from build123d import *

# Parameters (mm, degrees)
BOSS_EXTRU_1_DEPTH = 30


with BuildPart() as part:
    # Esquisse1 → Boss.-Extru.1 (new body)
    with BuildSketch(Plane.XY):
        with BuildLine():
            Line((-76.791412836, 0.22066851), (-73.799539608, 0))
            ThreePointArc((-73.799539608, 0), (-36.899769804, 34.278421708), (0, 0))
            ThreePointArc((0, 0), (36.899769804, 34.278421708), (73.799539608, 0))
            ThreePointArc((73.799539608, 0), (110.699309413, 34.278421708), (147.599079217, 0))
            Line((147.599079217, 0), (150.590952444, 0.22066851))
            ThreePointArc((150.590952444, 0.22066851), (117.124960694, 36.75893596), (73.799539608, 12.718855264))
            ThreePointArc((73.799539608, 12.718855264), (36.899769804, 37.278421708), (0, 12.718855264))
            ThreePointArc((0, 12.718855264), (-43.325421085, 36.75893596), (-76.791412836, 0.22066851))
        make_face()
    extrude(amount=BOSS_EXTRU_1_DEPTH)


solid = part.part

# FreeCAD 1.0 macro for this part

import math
import FreeCAD as App
import Part
import Sketcher

V = App.Vector

doc = App.newDocument("Part")
body = doc.addObject("PartDesign::Body", "Body")

sketch1 = doc.addObject("Sketcher::SketchObject", "Sketch")
body.addObject(sketch1)
sketch1.AttachmentSupport = (doc.XY_Plane, [""])
sketch1.MapMode = "FlatFace"
sketch1.addGeometry([
    Part.LineSegment(V(-76.8, 0.2, 0), V(-73.8, 0, 0)),
    Part.ArcOfCircle(Part.Circle(V(-36.9, -2.7, 0), V(0, 0, 1), 37), math.radians(4), math.radians(176)),
    Part.ArcOfCircle(Part.Circle(V(36.9, -2.7, 0), V(0, 0, 1), 37), math.radians(4), math.radians(176)),
    Part.ArcOfCircle(Part.Circle(V(110.7, -2.7, 0), V(0, 0, 1), 37), math.radians(4), math.radians(176)),
    Part.LineSegment(V(147.6, 0, 0), V(150.6, 0.2, 0)),
    Part.ArcOfCircle(Part.Circle(V(110.7, -2.7, 0), V(0, 0, 1), 40), math.radians(4), math.radians(157)),
    Part.ArcOfCircle(Part.Circle(V(36.9, -2.7, 0), V(0, 0, 1), 40), math.radians(23), math.radians(157)),
    Part.ArcOfCircle(Part.Circle(V(-36.9, -2.7, 0), V(0, 0, 1), 40), math.radians(23), math.radians(176)),
], False)
sketch1.addConstraint([
    Sketcher.Constraint("Coincident", 0, 2, 1, 2),
    Sketcher.Constraint("Coincident", 1, 1, 2, 2),
    Sketcher.Constraint("Coincident", 2, 1, 3, 2),
    Sketcher.Constraint("Coincident", 3, 1, 4, 1),
    Sketcher.Constraint("Coincident", 4, 2, 5, 1),
    Sketcher.Constraint("Coincident", 5, 2, 6, 1),
    Sketcher.Constraint("Coincident", 6, 2, 7, 1),
    Sketcher.Constraint("Coincident", 7, 2, 0, 1),
    Sketcher.Constraint("Coincident", 1, 1, -1, 1),
    Sketcher.Constraint("Coincident", 5, 3, 3, 3),
    Sketcher.Constraint("Coincident", 6, 3, 2, 3),
    Sketcher.Constraint("Coincident", 7, 3, 1, 3),
    Sketcher.Constraint("Equal", 1, 2),
    Sketcher.Constraint("Equal", 2, 3),
    Sketcher.Constraint("Equal", 5, 6),
    Sketcher.Constraint("Equal", 6, 7),
    Sketcher.Constraint("Symmetric", 0, 2, 2, 1, -1, 1),
    Sketcher.Constraint("PointOnObject", 0, 2, -1),
    Sketcher.Constraint("PointOnObject", 3, 1, -1),
    Sketcher.Constraint("Horizontal", 2, 3, 3, 3),
    Sketcher.Constraint("Horizontal", 4, 2, 7, 2),
    Sketcher.Constraint("Radius", 1, 37.0),
    Sketcher.Constraint("Radius", 5, 40.0),
    Sketcher.Constraint("DistanceX", 1, 3, -1, 1, 36.89977),
    Sketcher.Constraint("DistanceY", -1, 1, 4, 2, 0.220669),
])
pad1 = doc.addObject("PartDesign::Pad", "Pad")
body.addObject(pad1)
pad1.Profile = sketch1
pad1.Length = 30

doc.recompute()
